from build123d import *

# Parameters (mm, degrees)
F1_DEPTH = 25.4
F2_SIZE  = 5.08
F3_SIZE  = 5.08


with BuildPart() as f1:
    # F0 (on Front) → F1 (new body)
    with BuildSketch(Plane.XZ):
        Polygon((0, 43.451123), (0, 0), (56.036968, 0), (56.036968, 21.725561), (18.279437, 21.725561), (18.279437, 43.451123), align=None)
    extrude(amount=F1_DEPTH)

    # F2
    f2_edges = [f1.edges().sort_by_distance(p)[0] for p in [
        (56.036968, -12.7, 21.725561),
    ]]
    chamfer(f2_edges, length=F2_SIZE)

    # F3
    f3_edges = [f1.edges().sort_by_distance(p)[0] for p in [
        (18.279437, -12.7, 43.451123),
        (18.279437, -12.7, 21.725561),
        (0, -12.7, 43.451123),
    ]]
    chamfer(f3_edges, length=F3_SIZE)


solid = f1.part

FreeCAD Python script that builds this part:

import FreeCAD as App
import Part
import Sketcher

V = App.Vector


def edges_at(feature, points):
    """Names of the edges that pass closest to the given points."""
    edges = feature.Shape.Edges
    near = lambda p: min(range(len(edges)), key=lambda i: edges[i].distToShape(Part.Vertex(*p))[0])
    return sorted({f"Edge{near(p) + 1}" for p in points})

doc = App.newDocument("Part")
params = doc.addObject("Spreadsheet::Sheet", "Params")
for row, (alias, value) in enumerate([
    ("pad1_length", "1 in"),
    ("chamfer_size", "0.2 in"),
    ("chamfer2_size", "0.2 in"),
], start=1):
    params.set(f"A{row}", alias)
    params.set(f"B{row}", "=" + value)
    params.setAlias(f"B{row}", alias)

body = doc.addObject("PartDesign::Body", "Body")

sketch1 = doc.addObject("Sketcher::SketchObject", "Sketch")
body.addObject(sketch1)
sketch1.AttachmentSupport = (doc.XZ_Plane, [""])
sketch1.MapMode = "FlatFace"
sketch1.addGeometry([
    Part.LineSegment(V(0, 43.451123, 0), V(0, 0, 0)),
    Part.LineSegment(V(0, 0, 0), V(56.036968, 0, 0)),
    Part.LineSegment(V(56.036968, 0, 0), V(56.036968, 21.725561, 0)),
    Part.LineSegment(V(56.036968, 21.725561, 0), V(18.279437, 21.725561, 0)),
    Part.LineSegment(V(18.279437, 21.725561, 0), V(18.279437, 43.451123, 0)),
    Part.LineSegment(V(18.279437, 43.451123, 0), V(0, 43.451123, 0)),
], False)
sketch1.addConstraint([
    Sketcher.Constraint("Coincident", 0, 2, 1, 1),
    Sketcher.Constraint("Coincident", 1, 2, 2, 1),
    Sketcher.Constraint("Coincident", 2, 2, 3, 1),
    Sketcher.Constraint("Coincident", 3, 2, 4, 1),
    Sketcher.Constraint("Coincident", 4, 2, 5, 1),
    Sketcher.Constraint("Coincident", 5, 2, 0, 1),
    Sketcher.Constraint("Vertical", 0),
    Sketcher.Constraint("Horizontal", 1),
    Sketcher.Constraint("Vertical", 2),
    Sketcher.Constraint("Horizontal", 3),
    Sketcher.Constraint("Vertical", 4),
    Sketcher.Constraint("Horizontal", 5),
    Sketcher.Constraint("Coincident", 0, 2, -1, 1),
    Sketcher.Constraint("Equal", 2, 4),
    Sketcher.Constraint("DistanceX", 1, 1, 1, 2, 56.036968),
    Sketcher.Constraint("DistanceX", 3, 2, 3, 1, 37.757531),
    Sketcher.Constraint("DistanceY", 2, 1, 2, 2, 21.725561),
])
pad1 = doc.addObject("PartDesign::Pad", "Pad")
body.addObject(pad1)
pad1.Profile = sketch1
pad1.setExpression("Length", "Params.pad1_length")
doc.recompute()

chamfer = doc.addObject("PartDesign::Chamfer", "Chamfer")
body.addObject(chamfer)
chamfer.Base = (pad1, edges_at(pad1, [(56.037, -12.7, 21.726)]))
chamfer.setExpression("Size", "Params.chamfer_size")
doc.recompute()

chamfer2 = doc.addObject("PartDesign::Chamfer", "Chamfer001")
body.addObject(chamfer2)
chamfer2.Base = (chamfer, edges_at(chamfer, [(18.279, -12.7, 43.451), (18.279, -12.7, 21.726), (0, -12.7, 43.451)]))
chamfer2.setExpression("Size", "Params.chamfer2_size")

doc.recompute()
